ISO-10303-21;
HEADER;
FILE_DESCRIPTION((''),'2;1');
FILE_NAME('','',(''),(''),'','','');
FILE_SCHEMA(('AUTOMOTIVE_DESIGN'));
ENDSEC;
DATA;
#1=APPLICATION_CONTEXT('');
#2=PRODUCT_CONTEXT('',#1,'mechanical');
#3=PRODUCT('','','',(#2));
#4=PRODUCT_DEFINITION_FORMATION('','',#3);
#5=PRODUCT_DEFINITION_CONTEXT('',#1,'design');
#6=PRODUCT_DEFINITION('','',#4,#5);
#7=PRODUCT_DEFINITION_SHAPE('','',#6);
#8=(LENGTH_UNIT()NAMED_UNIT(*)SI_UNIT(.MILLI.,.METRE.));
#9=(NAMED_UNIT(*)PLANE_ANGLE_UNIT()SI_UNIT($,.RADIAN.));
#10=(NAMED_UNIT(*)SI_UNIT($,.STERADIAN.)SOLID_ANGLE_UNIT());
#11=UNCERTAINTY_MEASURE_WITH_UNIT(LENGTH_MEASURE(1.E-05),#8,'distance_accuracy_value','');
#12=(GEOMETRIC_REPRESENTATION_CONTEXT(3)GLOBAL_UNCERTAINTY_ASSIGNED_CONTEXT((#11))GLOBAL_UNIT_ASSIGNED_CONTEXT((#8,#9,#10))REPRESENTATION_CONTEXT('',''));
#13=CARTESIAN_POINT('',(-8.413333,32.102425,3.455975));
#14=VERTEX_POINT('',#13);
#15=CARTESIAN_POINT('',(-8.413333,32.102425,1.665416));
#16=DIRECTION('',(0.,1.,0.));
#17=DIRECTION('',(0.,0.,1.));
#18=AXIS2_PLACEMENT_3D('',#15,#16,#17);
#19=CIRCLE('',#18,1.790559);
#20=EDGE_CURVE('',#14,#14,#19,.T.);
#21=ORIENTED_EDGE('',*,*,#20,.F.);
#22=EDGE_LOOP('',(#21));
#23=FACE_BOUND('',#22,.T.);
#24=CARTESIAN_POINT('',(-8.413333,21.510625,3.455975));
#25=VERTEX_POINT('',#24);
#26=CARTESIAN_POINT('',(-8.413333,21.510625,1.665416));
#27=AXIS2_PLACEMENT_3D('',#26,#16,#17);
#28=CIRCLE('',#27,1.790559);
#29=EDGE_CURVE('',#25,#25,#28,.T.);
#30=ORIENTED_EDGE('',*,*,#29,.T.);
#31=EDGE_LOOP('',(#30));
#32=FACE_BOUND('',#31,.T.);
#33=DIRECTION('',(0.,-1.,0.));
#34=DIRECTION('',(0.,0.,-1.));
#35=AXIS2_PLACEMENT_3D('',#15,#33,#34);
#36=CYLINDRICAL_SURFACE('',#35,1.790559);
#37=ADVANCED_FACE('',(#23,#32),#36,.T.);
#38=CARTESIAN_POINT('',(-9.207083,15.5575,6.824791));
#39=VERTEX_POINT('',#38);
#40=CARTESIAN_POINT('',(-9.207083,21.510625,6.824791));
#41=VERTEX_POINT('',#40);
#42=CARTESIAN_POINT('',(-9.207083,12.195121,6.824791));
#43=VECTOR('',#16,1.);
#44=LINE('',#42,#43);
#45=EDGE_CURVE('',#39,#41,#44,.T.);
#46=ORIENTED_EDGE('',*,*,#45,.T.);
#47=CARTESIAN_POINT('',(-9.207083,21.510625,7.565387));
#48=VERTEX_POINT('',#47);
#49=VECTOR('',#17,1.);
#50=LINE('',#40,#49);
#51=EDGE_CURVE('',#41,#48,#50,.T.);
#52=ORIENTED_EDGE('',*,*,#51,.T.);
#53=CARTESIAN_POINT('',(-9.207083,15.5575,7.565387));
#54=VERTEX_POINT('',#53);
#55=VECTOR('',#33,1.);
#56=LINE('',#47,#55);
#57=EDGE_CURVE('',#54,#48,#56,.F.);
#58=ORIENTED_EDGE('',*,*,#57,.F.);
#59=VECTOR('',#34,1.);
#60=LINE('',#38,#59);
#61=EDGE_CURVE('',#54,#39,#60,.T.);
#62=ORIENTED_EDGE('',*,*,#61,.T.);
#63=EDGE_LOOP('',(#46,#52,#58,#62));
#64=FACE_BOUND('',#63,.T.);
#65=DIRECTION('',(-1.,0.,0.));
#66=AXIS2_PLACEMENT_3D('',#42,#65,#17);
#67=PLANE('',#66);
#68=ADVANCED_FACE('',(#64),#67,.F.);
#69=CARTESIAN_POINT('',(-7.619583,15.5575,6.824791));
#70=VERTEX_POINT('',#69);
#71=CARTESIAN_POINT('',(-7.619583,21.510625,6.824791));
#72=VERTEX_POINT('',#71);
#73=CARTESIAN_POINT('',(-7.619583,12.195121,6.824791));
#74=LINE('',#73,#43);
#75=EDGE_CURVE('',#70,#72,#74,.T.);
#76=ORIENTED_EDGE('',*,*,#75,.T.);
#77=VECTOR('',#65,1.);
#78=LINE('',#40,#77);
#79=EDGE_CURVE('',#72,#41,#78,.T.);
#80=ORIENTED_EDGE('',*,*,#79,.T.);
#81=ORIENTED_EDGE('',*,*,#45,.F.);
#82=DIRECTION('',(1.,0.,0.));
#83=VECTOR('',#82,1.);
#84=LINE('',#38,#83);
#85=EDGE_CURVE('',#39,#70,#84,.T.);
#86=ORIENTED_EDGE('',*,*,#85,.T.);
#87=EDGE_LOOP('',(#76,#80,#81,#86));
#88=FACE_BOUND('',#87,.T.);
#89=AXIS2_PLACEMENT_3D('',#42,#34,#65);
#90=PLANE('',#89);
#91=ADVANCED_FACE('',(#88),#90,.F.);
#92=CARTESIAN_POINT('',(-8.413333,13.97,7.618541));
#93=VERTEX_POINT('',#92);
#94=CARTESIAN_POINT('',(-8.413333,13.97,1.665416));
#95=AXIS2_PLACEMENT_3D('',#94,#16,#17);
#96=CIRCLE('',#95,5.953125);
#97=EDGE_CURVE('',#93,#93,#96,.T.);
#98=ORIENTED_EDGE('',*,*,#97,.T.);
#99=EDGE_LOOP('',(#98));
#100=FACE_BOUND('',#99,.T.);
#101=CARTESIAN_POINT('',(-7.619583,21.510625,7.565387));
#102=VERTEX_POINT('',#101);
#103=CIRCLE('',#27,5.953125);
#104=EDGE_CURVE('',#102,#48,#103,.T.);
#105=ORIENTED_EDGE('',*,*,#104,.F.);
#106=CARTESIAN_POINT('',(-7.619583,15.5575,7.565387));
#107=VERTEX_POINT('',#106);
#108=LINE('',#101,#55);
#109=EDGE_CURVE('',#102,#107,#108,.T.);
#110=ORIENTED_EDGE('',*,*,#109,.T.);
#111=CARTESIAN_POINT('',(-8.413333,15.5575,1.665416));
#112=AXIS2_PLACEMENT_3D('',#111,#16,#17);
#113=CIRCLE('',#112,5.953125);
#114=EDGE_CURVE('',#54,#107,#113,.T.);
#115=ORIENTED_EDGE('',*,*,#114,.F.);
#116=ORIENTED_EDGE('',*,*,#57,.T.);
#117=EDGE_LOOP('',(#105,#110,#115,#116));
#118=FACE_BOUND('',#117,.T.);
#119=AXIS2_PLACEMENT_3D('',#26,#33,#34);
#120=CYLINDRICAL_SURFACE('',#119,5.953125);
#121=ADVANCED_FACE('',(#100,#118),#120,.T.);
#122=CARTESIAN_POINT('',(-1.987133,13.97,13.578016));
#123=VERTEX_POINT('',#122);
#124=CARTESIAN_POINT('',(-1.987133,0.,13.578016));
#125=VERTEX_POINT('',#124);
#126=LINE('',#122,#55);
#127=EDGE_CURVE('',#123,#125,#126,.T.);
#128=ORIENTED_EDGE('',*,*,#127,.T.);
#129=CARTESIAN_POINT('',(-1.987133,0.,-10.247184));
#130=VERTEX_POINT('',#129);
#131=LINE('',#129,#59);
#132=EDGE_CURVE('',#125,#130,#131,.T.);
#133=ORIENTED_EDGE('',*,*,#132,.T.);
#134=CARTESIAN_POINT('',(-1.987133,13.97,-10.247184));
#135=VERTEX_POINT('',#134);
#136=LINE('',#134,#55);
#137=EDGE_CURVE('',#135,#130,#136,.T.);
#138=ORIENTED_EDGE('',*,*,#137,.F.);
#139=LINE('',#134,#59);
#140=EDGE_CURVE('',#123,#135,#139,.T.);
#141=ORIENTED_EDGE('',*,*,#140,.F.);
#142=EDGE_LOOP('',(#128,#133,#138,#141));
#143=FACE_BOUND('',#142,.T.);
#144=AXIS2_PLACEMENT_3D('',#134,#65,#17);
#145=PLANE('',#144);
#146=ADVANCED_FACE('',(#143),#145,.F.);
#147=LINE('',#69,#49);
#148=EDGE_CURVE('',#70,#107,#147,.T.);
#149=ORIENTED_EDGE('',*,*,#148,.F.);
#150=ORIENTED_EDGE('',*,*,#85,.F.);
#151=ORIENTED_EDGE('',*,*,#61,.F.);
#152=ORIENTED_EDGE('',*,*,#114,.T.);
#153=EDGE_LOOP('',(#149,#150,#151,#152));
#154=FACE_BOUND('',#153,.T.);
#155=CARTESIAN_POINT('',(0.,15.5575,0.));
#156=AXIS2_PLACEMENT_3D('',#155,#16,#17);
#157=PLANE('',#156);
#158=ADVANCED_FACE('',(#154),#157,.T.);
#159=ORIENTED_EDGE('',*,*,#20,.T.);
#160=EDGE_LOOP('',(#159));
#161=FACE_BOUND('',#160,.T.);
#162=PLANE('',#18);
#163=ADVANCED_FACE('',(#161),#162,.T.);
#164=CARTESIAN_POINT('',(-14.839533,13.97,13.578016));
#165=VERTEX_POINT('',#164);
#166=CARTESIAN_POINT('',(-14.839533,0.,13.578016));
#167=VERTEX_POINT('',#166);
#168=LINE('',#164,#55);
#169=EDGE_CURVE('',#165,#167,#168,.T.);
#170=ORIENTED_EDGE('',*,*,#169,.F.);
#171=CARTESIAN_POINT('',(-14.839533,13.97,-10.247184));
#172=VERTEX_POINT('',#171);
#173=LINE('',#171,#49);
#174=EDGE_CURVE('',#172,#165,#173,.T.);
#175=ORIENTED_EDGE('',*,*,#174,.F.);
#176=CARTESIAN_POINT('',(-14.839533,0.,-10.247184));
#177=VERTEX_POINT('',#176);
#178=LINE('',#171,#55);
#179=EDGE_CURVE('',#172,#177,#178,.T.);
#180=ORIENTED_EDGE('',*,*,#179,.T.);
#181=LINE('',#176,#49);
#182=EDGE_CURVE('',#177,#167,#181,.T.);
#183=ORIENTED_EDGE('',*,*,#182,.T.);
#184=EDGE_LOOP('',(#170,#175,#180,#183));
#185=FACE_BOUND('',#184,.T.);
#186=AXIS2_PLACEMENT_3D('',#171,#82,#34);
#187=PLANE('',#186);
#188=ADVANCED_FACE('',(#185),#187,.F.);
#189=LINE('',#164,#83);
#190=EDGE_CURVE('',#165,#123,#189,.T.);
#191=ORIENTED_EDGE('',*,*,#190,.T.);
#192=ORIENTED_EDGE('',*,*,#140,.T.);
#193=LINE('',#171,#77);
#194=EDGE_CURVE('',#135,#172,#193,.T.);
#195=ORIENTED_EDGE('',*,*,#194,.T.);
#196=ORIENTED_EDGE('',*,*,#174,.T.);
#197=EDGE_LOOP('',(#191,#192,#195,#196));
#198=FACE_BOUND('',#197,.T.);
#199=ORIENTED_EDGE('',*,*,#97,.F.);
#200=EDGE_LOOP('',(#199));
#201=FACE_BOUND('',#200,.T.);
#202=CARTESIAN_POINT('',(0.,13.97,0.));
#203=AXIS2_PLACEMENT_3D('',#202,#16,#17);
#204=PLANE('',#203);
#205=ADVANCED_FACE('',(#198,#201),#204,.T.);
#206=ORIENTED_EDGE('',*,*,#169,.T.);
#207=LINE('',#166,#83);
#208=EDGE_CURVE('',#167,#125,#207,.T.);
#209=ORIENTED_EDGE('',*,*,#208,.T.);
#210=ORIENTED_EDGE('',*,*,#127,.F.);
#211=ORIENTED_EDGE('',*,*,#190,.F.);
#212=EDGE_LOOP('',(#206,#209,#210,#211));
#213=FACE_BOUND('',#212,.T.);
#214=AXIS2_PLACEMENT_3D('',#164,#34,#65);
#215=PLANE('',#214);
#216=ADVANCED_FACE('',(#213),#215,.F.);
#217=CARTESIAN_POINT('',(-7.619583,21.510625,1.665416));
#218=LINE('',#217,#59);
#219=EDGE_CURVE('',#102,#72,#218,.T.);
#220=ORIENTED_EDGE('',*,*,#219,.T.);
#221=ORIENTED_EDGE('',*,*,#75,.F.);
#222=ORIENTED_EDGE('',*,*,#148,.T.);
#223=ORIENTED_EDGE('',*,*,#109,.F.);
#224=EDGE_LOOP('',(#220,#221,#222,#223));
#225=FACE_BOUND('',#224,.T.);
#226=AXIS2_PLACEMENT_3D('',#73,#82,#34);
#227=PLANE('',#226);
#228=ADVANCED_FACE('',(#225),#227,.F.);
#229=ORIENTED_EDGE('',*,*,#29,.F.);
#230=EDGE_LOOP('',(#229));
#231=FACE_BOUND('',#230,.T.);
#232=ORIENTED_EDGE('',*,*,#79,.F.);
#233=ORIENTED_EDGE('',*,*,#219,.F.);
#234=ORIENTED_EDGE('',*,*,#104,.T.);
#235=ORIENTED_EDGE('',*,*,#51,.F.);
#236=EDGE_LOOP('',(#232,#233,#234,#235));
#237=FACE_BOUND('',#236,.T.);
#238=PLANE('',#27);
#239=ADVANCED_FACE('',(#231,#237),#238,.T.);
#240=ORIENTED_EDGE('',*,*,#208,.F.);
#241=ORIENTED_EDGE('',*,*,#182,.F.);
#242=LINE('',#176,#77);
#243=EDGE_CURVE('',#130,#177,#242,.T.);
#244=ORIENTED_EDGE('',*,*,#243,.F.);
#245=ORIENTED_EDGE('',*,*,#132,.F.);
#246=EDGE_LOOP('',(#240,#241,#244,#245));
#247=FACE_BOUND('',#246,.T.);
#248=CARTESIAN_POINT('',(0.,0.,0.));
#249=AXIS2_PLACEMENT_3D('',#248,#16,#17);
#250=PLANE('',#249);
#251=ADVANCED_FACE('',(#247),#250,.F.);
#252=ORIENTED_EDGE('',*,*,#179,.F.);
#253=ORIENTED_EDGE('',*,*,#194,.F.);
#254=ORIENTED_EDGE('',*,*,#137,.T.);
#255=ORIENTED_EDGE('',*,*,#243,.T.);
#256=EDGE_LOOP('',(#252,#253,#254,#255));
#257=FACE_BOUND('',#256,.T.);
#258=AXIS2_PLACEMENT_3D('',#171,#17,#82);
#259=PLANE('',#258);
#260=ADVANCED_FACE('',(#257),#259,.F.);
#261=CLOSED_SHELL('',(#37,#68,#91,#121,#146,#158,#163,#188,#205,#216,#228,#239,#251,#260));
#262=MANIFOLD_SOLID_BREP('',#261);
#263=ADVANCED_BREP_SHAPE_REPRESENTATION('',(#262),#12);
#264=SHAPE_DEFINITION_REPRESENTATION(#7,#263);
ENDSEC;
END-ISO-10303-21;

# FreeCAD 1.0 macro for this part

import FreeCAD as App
import Part
import Sketcher
Q = App.Units.Quantity

doc = App.newDocument("Part")
body = doc.addObject("PartDesign::Body", "Body")

# Sketch on XZ plane
sketch1 = body.newObject("Sketcher::SketchObject", "Sketch")
sketch1.AttachmentSupport = (doc.getObject("XZ_Plane"), [""])
sketch1.MapMode = "FlatFace"
sketch1.addGeometry([
    Part.LineSegment(App.Vector(-14.839533, -10.247184, 0), App.Vector(-14.839533, 13.578016, 0)),
    Part.LineSegment(App.Vector(-14.839533, 13.578016, 0), App.Vector(-1.987133, 13.578016, 0)),
    Part.LineSegment(App.Vector(-1.987133, 13.578016, 0), App.Vector(-1.987133, -10.247184, 0)),
    Part.LineSegment(App.Vector(-1.987133, -10.247184, 0), App.Vector(-14.839533, -10.247184, 0)),
], False)
sketch1.addConstraint([
    Sketcher.Constraint("Coincident", 0, 2, 1, 1),
    Sketcher.Constraint("Coincident", 1, 2, 2, 1),
    Sketcher.Constraint("Coincident", 2, 2, 3, 1),
    Sketcher.Constraint("Coincident", 3, 2, 0, 1),
    Sketcher.Constraint("Vertical", 0),
    Sketcher.Constraint("Horizontal", 1),
    Sketcher.Constraint("Vertical", 2),
    Sketcher.Constraint("Horizontal", 3),
    Sketcher.Constraint("DistanceX", 1, 1, 1, 2, Q("0.506 in")),
    Sketcher.Constraint("DistanceY", 0, 1, 0, 2, Q("0.938 in")),
    Sketcher.Constraint("DistanceX", 0, 2, -1, 1, Q("14.839533 mm")),
    Sketcher.Constraint("DistanceY", -1, 1, 0, 2, Q("13.578016 mm")),
])
pad1 = body.newObject("PartDesign::Pad", "Pad")
pad1.Profile = sketch1
pad1.Length = Q("0.55 in")
pad1.Reversed = True

# Sketch on XZ plane
sketch2 = body.newObject("Sketcher::SketchObject", "Sketch001")
sketch2.AttachmentSupport = (doc.getObject("XZ_Plane"), [""])
sketch2.MapMode = "FlatFace"
sketch2.AttachmentOffset = App.Placement(App.Vector(0, 0, -0.55 * 25.4), App.Rotation())
sketch2.addGeometry(Part.Circle(App.Vector(-8.413333, 1.665416, 0), App.Vector(0, 0, 1), 5.953125), False)
sketch2.addConstraint([
    Sketcher.Constraint("Diameter", 0, Q("0.46875 in")),
    Sketcher.Constraint("DistanceX", 0, 3, -1, 1, Q("8.413333 mm")),
    Sketcher.Constraint("DistanceY", -1, 1, 0, 3, Q("1.665416 mm")),
])
pad2 = body.newObject("PartDesign::Pad", "Pad001")
pad2.Profile = sketch2
pad2.Length = Q("0.296875 in")
pad2.Reversed = True

# Sketch on XZ plane
sketch3 = body.newObject("Sketcher::SketchObject", "Sketch002")
sketch3.AttachmentSupport = (doc.getObject("XZ_Plane"), [""])
sketch3.MapMode = "FlatFace"
sketch3.AttachmentOffset = App.Placement(App.Vector(0, 0, -21.510625), App.Rotation())
sketch3.addGeometry([
    Part.LineSegment(App.Vector(-9.207083, 6.824791, 0), App.Vector(-9.207083, 7.618541, 0)),
    Part.LineSegment(App.Vector(-9.207083, 7.618541, 0), App.Vector(-7.619583, 7.618541, 0)),
    Part.LineSegment(App.Vector(-7.619583, 7.618541, 0), App.Vector(-7.619583, 6.824791, 0)),
    Part.LineSegment(App.Vector(-7.619583, 6.824791, 0), App.Vector(-9.207083, 6.824791, 0)),
], False)
sketch3.addConstraint([
    Sketcher.Constraint("Coincident", 0, 2, 1, 1),
    Sketcher.Constraint("Coincident", 1, 2, 2, 1),
    Sketcher.Constraint("Coincident", 2, 2, 3, 1),
    Sketcher.Constraint("Coincident", 3, 2, 0, 1),
    Sketcher.Constraint("Vertical", 0),
    Sketcher.Constraint("Horizontal", 1),
    Sketcher.Constraint("Vertical", 2),
    Sketcher.Constraint("Horizontal", 3),
    Sketcher.Constraint("DistanceX", 1, 1, 1, 2, Q("0.0625 in")),
    Sketcher.Constraint("DistanceY", 0, 1, 0, 2, Q("0.03125 in")),
    Sketcher.Constraint("DistanceY", -1, 1, 0, 2, Q("7.618541 mm")),
    Sketcher.Constraint("DistanceX", 0, 2, -1, 1, Q("9.207083 mm")),
])
pocket1 = body.newObject("PartDesign::Pocket", "Pocket")
pocket1.Profile = sketch3
pocket1.Length = Q("0.234375 in")
pocket1.Reversed = True

# Sketch on XZ plane
sketch4 = body.newObject("Sketcher::SketchObject", "Sketch003")
sketch4.AttachmentSupport = (doc.getObject("XZ_Plane"), [""])
sketch4.MapMode = "FlatFace"
sketch4.AttachmentOffset = App.Placement(App.Vector(0, 0, -21.510625), App.Rotation())
sketch4.addGeometry(Part.Circle(App.Vector(-8.413333, 1.665416, 0), App.Vector(0, 0, 1), 1.790559), False)
sketch4.addConstraint([
    Sketcher.Constraint("Diameter", 0, Q("3.581118 mm")),
    Sketcher.Constraint("DistanceX", 0, 3, -1, 1, Q("8.413333 mm")),
    Sketcher.Constraint("DistanceY", -1, 1, 0, 3, Q("1.665416 mm")),
])
pad3 = body.newObject("PartDesign::Pad", "Pad002")
pad3.Profile = sketch4
pad3.Length = Q("0.417 in")
pad3.Reversed = True

doc.recompute()
